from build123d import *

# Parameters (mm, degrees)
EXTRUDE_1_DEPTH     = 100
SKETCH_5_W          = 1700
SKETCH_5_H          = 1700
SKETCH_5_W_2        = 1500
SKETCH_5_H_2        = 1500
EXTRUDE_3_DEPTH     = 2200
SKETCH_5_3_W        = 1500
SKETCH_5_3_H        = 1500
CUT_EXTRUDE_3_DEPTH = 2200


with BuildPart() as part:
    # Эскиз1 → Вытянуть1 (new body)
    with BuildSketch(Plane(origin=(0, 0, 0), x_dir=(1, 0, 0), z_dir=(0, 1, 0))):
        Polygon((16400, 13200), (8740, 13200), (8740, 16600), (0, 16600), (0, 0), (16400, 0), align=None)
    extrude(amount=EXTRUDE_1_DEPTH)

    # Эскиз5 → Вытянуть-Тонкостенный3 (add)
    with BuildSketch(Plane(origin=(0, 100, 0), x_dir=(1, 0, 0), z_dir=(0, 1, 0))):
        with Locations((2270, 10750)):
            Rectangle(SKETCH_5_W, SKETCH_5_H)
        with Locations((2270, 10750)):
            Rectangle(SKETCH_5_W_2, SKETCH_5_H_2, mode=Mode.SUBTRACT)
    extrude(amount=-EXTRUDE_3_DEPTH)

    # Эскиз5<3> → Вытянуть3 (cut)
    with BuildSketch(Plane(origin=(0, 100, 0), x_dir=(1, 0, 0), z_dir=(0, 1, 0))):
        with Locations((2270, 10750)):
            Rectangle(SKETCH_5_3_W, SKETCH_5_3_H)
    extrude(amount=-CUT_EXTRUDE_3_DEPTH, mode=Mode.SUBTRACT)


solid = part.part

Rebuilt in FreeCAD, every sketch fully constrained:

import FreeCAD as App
import Part
import Sketcher

V = App.Vector
Q = App.Units.Quantity


def add_polygon(sketch, points):
    """Adds a closed chain of lines whose ends are joined by coincident constraints."""
    first, n = sketch.GeometryCount, len(points)
    for a, b in zip(points, points[1:] + points[:1]):
        sketch.addGeometry(Part.LineSegment(App.Vector(*a, 0), App.Vector(*b, 0)), False)
    for i in range(n):
        sketch.addConstraint(Sketcher.Constraint("Coincident", first + i, 2, first + (i + 1) % n, 1))

doc = App.newDocument("Part")
body = doc.addObject("PartDesign::Body", "Body")

# Sketch on XZ plane
sketch1 = doc.addObject("Sketcher::SketchObject", "Sketch")
body.addObject(sketch1)
sketch1.AttachmentSupport = (doc.XZ_Plane, [""])
sketch1.MapMode = "FlatFace"
add_polygon(sketch1, [(16400, -13200), (8740, -13200), (8740, -16600), (0, -16600), (0, 0), (16400, 0)])  # lines 0-5
sketch1.addConstraint(Sketcher.Constraint("Horizontal", 0))
sketch1.addConstraint(Sketcher.Constraint("Vertical", 1))
sketch1.addConstraint(Sketcher.Constraint("Horizontal", 2))
sketch1.addConstraint(Sketcher.Constraint("Vertical", 3))
sketch1.addConstraint(Sketcher.Constraint("Horizontal", 4))
sketch1.addConstraint(Sketcher.Constraint("Vertical", 5))
sketch1.addConstraint(Sketcher.Constraint("Coincident", 3, 2, -1, 1))
sketch1.addConstraint(Sketcher.Constraint("DistanceX", 0, 2, 0, 1, Q("7660 mm")))
sketch1.addConstraint(Sketcher.Constraint("DistanceX", 2, 2, 2, 1, Q("8740 mm")))
sketch1.addConstraint(Sketcher.Constraint("DistanceY", 1, 2, 1, 1, Q("3400 mm")))
sketch1.addConstraint(Sketcher.Constraint("DistanceY", 3, 1, 3, 2, Q("16600 mm")))
pad1 = doc.addObject("PartDesign::Pad", "Pad")
body.addObject(pad1)
pad1.Profile = sketch1
pad1.Length = 100
pad1.Reversed = True

# Sketch on XZ plane
sketch2 = doc.addObject("Sketcher::SketchObject", "Sketch001")
body.addObject(sketch2)
sketch2.AttachmentSupport = (doc.XZ_Plane, [""])
sketch2.MapMode = "FlatFace"
sketch2.AttachmentOffset = App.Placement(V(0, 0, -100), App.Rotation())
add_polygon(sketch2, [(1420, -11600), (1420, -9900), (3120, -9900), (3120, -11600)])  # lines 0-3
add_polygon(sketch2, [(3020, -10000), (1520, -10000), (1520, -11500), (3020, -11500)])  # lines 4-7
sketch2.addConstraint(Sketcher.Constraint("Vertical", 0))
sketch2.addConstraint(Sketcher.Constraint("Horizontal", 1))
sketch2.addConstraint(Sketcher.Constraint("Vertical", 2))
sketch2.addConstraint(Sketcher.Constraint("Horizontal", 3))
sketch2.addConstraint(Sketcher.Constraint("Horizontal", 4))
sketch2.addConstraint(Sketcher.Constraint("Vertical", 5))
sketch2.addConstraint(Sketcher.Constraint("Horizontal", 6))
sketch2.addConstraint(Sketcher.Constraint("Vertical", 7))
sketch2.addConstraint(Sketcher.Constraint("Equal", 3, 0))
sketch2.addConstraint(Sketcher.Constraint("Equal", 6, 5))
sketch2.addConstraint(Sketcher.Constraint("DistanceX", 1, 1, 1, 2, Q("1700 mm")))
sketch2.addConstraint(Sketcher.Constraint("DistanceX", 4, 2, 4, 1, Q("1500 mm")))
sketch2.addConstraint(Sketcher.Constraint("DistanceX", -1, 1, 0, 2, Q("1420 mm")))
sketch2.addConstraint(Sketcher.Constraint("DistanceY", 0, 2, -1, 1, Q("9900 mm")))
sketch2.addConstraint(Sketcher.Constraint("DistanceX", -1, 1, 4, 2, Q("1520 mm")))
sketch2.addConstraint(Sketcher.Constraint("DistanceY", 4, 2, -1, 1, Q("10000 mm")))
pad2 = doc.addObject("PartDesign::Pad", "Pad001")
body.addObject(pad2)
pad2.Profile = sketch2
pad2.Length = 2200

# Sketch on XZ plane
sketch3 = doc.addObject("Sketcher::SketchObject", "Sketch002")
body.addObject(sketch3)
sketch3.AttachmentSupport = (doc.XZ_Plane, [""])
sketch3.MapMode = "FlatFace"
sketch3.AttachmentOffset = App.Placement(V(0, 0, -100), App.Rotation())
add_polygon(sketch3, [(1520, -11500), (1520, -10000), (3020, -10000), (3020, -11500)])  # lines 0-3
sketch3.addConstraint(Sketcher.Constraint("Vertical", 0))
sketch3.addConstraint(Sketcher.Constraint("Horizontal", 1))
sketch3.addConstraint(Sketcher.Constraint("Vertical", 2))
sketch3.addConstraint(Sketcher.Constraint("Horizontal", 3))
sketch3.addConstraint(Sketcher.Constraint("Equal", 3, 0))
sketch3.addConstraint(Sketcher.Constraint("DistanceX", 1, 1, 1, 2, Q("1500 mm")))
sketch3.addConstraint(Sketcher.Constraint("DistanceX", -1, 1, 0, 2, Q("1520 mm")))
sketch3.addConstraint(Sketcher.Constraint("DistanceY", 0, 2, -1, 1, Q("10000 mm")))
pocket1 = doc.addObject("PartDesign::Pocket", "Pocket")
body.addObject(pocket1)
pocket1.Profile = sketch3
pocket1.Length = 2200
pocket1.Reversed = True

doc.recompute()
